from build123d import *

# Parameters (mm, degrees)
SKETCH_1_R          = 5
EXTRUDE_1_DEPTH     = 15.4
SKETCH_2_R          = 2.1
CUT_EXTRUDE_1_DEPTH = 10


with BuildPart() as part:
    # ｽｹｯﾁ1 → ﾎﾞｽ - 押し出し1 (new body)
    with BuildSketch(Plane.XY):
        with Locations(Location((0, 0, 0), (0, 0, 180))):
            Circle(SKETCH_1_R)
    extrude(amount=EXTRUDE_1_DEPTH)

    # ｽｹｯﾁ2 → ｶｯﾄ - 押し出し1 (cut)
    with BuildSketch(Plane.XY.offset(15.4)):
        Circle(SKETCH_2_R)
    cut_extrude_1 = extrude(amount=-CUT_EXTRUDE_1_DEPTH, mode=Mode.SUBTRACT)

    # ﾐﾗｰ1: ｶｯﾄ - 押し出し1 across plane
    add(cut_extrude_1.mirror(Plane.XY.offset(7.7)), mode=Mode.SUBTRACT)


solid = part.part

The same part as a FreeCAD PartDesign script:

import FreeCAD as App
import Part
import Sketcher
from FreeCAD import Vector
Q = App.Units.Quantity

doc = App.newDocument("Part")
body = doc.addObject("PartDesign::Body", "Body")

# Sketch on XY plane
sketch1 = body.newObject("Sketcher::SketchObject", "Sketch")
sketch1.AttachmentSupport = (doc.getObject("XY_Plane"), [""])
sketch1.MapMode = "FlatFace"
sketch1.addGeometry(Part.Circle(Vector(0, 0, 0), Vector(0, 0, 1), 5), False)
sketch1.addConstraint([
    Sketcher.Constraint("Coincident", 0, 3, -1, 1),
    Sketcher.Constraint("Diameter", 0, Q("10 mm")),
])
pad1 = body.newObject("PartDesign::Pad", "Pad")
pad1.Profile = sketch1
pad1.Length = 15.4

# Sketch on XY plane
sketch2 = body.newObject("Sketcher::SketchObject", "Sketch001")
sketch2.AttachmentSupport = (doc.getObject("XY_Plane"), [""])
sketch2.MapMode = "FlatFace"
sketch2.AttachmentOffset = App.Placement(Vector(0, 0, 15.4), App.Rotation())
sketch2.addGeometry(Part.Circle(Vector(0, 0, 0), Vector(0, 0, 1), 2.1), False)
sketch2.addConstraint([
    Sketcher.Constraint("Coincident", 0, 3, -1, 1),
    Sketcher.Constraint("Diameter", 0, Q("4.2 mm")),
])
pocket1 = body.newObject("PartDesign::Pocket", "Pocket")
pocket1.Profile = sketch2
pocket1.Length = 10
doc.recompute()

datumplane = body.newObject("PartDesign::Plane", "DatumPlane")
datumplane.AttachmentSupport = (doc.getObject("XY_Plane"), [""])
datumplane.MapMode = "FlatFace"
datumplane.AttachmentOffset = App.Placement(Vector(0, 0, 7.7), App.Rotation())
mirrored = body.newObject("PartDesign::Mirrored", "Mirrored")
mirrored.Originals = [pocket1]
mirrored.MirrorPlane = (datumplane, [""])
body.Tip = mirrored

doc.recompute()
